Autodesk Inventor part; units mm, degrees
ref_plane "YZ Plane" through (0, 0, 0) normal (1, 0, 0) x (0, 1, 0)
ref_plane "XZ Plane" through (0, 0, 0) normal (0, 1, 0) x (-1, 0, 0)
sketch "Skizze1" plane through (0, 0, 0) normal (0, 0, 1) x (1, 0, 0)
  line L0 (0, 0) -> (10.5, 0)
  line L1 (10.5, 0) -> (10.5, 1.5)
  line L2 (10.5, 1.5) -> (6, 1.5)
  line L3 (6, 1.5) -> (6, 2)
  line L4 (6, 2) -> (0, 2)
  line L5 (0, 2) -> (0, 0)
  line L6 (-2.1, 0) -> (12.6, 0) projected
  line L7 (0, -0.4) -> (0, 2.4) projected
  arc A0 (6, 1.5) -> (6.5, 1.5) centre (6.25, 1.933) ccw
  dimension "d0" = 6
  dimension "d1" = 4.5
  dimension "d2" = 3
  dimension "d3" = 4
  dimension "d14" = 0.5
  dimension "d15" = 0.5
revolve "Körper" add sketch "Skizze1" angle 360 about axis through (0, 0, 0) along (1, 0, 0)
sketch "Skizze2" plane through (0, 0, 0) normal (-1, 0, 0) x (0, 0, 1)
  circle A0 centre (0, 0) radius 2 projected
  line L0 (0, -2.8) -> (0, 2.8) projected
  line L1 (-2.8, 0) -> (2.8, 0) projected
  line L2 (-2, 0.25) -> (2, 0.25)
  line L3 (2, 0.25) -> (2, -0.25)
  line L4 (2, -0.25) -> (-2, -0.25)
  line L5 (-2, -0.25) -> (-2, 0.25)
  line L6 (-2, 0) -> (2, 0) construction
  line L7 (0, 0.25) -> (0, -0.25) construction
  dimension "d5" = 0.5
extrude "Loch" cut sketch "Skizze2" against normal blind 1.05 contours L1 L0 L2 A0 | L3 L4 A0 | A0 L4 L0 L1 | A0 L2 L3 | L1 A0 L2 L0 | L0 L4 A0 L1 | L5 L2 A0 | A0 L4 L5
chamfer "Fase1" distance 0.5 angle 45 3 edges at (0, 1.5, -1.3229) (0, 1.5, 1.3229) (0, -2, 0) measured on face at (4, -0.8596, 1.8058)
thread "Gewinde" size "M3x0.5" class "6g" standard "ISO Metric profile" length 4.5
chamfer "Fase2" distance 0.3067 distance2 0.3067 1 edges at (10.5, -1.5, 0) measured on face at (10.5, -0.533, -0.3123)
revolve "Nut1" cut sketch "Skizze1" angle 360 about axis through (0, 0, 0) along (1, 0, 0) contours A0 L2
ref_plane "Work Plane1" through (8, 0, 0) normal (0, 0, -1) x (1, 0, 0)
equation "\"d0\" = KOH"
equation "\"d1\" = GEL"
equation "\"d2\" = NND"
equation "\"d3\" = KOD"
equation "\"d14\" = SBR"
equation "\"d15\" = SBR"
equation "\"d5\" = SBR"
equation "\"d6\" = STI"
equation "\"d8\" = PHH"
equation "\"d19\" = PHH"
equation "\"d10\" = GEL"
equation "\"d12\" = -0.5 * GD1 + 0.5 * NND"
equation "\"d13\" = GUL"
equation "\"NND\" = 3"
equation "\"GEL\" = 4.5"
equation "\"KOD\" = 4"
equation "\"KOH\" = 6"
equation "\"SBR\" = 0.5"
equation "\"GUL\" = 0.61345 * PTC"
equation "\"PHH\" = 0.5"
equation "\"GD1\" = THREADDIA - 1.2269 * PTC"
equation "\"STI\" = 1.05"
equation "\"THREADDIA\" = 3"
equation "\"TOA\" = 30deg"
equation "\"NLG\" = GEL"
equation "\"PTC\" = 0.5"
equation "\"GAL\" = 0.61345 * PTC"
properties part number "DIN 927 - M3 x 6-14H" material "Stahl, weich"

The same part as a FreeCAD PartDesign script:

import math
import FreeCAD as App
import Part
import Sketcher
Q = App.Units.Quantity


def edges_at(feature, points):
    """Names of the edges that pass closest to the given points."""
    edges = feature.Shape.Edges
    near = lambda p: min(range(len(edges)), key=lambda i: edges[i].distToShape(Part.Vertex(*p))[0])
    return sorted({f"Edge{near(p) + 1}" for p in points})

doc = App.newDocument("Part")
body = doc.addObject("PartDesign::Body", "Body")

# Sketch on XY plane
sketch1 = body.newObject("Sketcher::SketchObject", "Sketch")
sketch1.AttachmentSupport = (doc.getObject("XY_Plane"), [""])
sketch1.MapMode = "FlatFace"
sketch1.addGeometry([
    Part.LineSegment(App.Vector(0, 2, 0), App.Vector(0, 0, 0)),  # 0
    Part.LineSegment(App.Vector(0, 0, 0), App.Vector(10.5, 0, 0)),  # 1
    Part.LineSegment(App.Vector(10.5, 0, 0), App.Vector(10.5, 1.5, 0)),  # 2
    Part.LineSegment(App.Vector(10.5, 1.5, 0), App.Vector(6, 1.5, 0)),  # 3
    Part.LineSegment(App.Vector(6, 1.5, 0), App.Vector(6, 2, 0)),  # 4
    Part.LineSegment(App.Vector(6, 2, 0), App.Vector(0, 2, 0)),  # 5
], False)
sketch1.addConstraint([
    Sketcher.Constraint("Coincident", 0, 2, 1, 1),
    Sketcher.Constraint("Coincident", 1, 2, 2, 1),
    Sketcher.Constraint("Coincident", 2, 2, 3, 1),
    Sketcher.Constraint("Coincident", 3, 2, 4, 1),
    Sketcher.Constraint("Coincident", 4, 2, 5, 1),
    Sketcher.Constraint("Coincident", 5, 2, 0, 1),
    Sketcher.Constraint("Vertical", 0),
    Sketcher.Constraint("Horizontal", 1),
    Sketcher.Constraint("Vertical", 2),
    Sketcher.Constraint("Horizontal", 3),
    Sketcher.Constraint("Vertical", 4),
    Sketcher.Constraint("Horizontal", 5),
    Sketcher.Constraint("Coincident", 0, 2, -1, 1),
    Sketcher.Constraint("DistanceX", 5, 2, 5, 1, Q("6 mm")),
    Sketcher.Constraint("DistanceX", 3, 2, 3, 1, Q("4.5 mm")),
    Sketcher.Constraint("DistanceY", 4, 1, 4, 2, Q("0.5 mm")),
    Sketcher.Constraint("DistanceY", 0, 2, 0, 1, Q("2 mm")),
])
revolution = body.newObject("PartDesign::Revolution", "Revolution")
revolution.Profile = sketch1
revolution.ReferenceAxis = (sketch1, ["H_Axis"])
revolution.Angle = 360

# Sketch on YZ plane
sketch2 = body.newObject("Sketcher::SketchObject", "Sketch001")
sketch2.AttachmentSupport = (doc.getObject("YZ_Plane"), [""])
sketch2.MapMode = "FlatFace"
sketch2.addGeometry([
    Part.LineSegment(App.Vector(0.2, -2, 0), App.Vector(-0.2, -2, 0)),
    Part.LineSegment(App.Vector(-0.2, -2, 0), App.Vector(-0.2, 2, 0)),
    Part.LineSegment(App.Vector(-0.2, 2, 0), App.Vector(0.2, 2, 0)),
    Part.LineSegment(App.Vector(0.2, 2, 0), App.Vector(0.2, -2, 0)),
], False)
sketch2.addConstraint([
    Sketcher.Constraint("Coincident", 0, 2, 1, 1),
    Sketcher.Constraint("Coincident", 1, 2, 2, 1),
    Sketcher.Constraint("Coincident", 2, 2, 3, 1),
    Sketcher.Constraint("Coincident", 3, 2, 0, 1),
    Sketcher.Constraint("Horizontal", 0),
    Sketcher.Constraint("Vertical", 1),
    Sketcher.Constraint("Horizontal", 2),
    Sketcher.Constraint("Vertical", 3),
    Sketcher.Constraint("Symmetric", 0, 2, 2, 2, -1, 1),
    Sketcher.Constraint("DistanceX", 0, 2, 0, 1, Q("0.5 mm")),
    Sketcher.Constraint("DistanceY", 1, 1, 1, 2, Q("4 mm")),
])
pocket1 = body.newObject("PartDesign::Pocket", "Pocket")
pocket1.Profile = sketch2
pocket1.Length = 1.05
pocket1.Reversed = True
doc.recompute()

chamfer = body.newObject("PartDesign::Chamfer", "Chamfer")
chamfer.Base = (pocket1, edges_at(pocket1, [(0, 1.5, -1.323), (0, 1.5, 1.323), (0, -2, 0)]))
chamfer.Size = 0.5
doc.recompute()

chamfer2 = body.newObject("PartDesign::Chamfer", "Chamfer001")
chamfer2.Base = (chamfer, edges_at(chamfer, [(10.5, -1.5, 0)]))
chamfer2.ChamferType = "Two distances"
chamfer2.Size = 0.3067
chamfer2.Size2 = 0.3067

# Sketch on XY plane
sketch3 = body.newObject("Sketcher::SketchObject", "Sketch002")
sketch3.AttachmentSupport = (doc.getObject("XY_Plane"), [""])
sketch3.MapMode = "FlatFace"
sketch3.addGeometry([
    Part.ArcOfCircle(Part.Circle(App.Vector(6.25, 1.93, 0), App.Vector(0, 0, 1), 0.5), math.radians(-120), math.radians(-60)),
    Part.LineSegment(App.Vector(6.5, 1.5, 0), App.Vector(6, 1.5, 0)),
], False)
sketch3.addConstraint([
    Sketcher.Constraint("Coincident", 0, 1, 1, 2),
    Sketcher.Constraint("Coincident", 1, 1, 0, 2),
    Sketcher.Constraint("Horizontal", 1),
    Sketcher.Constraint("Radius", 0, Q("0.5 mm")),
    Sketcher.Constraint("DistanceX", 1, 2, 1, 1, Q("0.5 mm")),
    Sketcher.Constraint("DistanceX", -1, 1, 0, 1, Q("6 mm")),
    Sketcher.Constraint("DistanceY", -1, 1, 0, 1, Q("1.5 mm")),
])
groove = body.newObject("PartDesign::Groove", "Groove")
groove.Profile = sketch3
groove.ReferenceAxis = (sketch3, ["H_Axis"])
groove.Angle = 360

doc.recompute()
